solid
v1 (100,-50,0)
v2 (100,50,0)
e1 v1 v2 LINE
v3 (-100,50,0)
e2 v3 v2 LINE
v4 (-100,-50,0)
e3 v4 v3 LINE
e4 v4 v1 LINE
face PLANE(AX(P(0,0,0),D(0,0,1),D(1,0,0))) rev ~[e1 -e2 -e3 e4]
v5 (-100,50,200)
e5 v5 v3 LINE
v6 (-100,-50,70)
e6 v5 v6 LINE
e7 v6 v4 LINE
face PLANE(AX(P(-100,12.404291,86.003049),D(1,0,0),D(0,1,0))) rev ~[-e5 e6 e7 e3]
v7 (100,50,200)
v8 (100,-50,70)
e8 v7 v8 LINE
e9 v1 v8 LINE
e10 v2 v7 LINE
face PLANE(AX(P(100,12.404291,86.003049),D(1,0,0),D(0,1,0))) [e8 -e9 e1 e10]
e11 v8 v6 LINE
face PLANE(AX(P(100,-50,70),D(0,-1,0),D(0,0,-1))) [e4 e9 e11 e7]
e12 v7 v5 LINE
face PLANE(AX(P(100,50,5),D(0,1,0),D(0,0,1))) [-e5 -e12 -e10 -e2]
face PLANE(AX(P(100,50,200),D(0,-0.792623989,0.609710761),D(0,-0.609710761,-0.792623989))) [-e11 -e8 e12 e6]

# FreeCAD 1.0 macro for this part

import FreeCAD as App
import Part
import Sketcher

doc = App.newDocument("Part")
body = doc.addObject("PartDesign::Body", "Body")

sketch1 = body.newObject("Sketcher::SketchObject", "Sketch")
sketch1.AttachmentSupport = (doc.getObject("XY_Plane"), [""])
sketch1.MapMode = "FlatFace"
sketch1.addGeometry([
    Part.LineSegment(App.Vector(-100, 50, 0), App.Vector(-100, -50, 0)),
    Part.LineSegment(App.Vector(-100, -50, 0), App.Vector(100, -50, 0)),
    Part.LineSegment(App.Vector(100, -50, 0), App.Vector(100, 50, 0)),
    Part.LineSegment(App.Vector(100, 50, 0), App.Vector(-100, 50, 0)),
], False)
sketch1.addConstraint([
    Sketcher.Constraint("Coincident", 0, 2, 1, 1),
    Sketcher.Constraint("Coincident", 1, 2, 2, 1),
    Sketcher.Constraint("Coincident", 2, 2, 3, 1),
    Sketcher.Constraint("Coincident", 3, 2, 0, 1),
    Sketcher.Constraint("Vertical", 0),
    Sketcher.Constraint("Horizontal", 1),
    Sketcher.Constraint("Vertical", 2),
    Sketcher.Constraint("Horizontal", 3),
    Sketcher.Constraint("Symmetric", 0, 2, 2, 2, -1, 1),
    Sketcher.Constraint("DistanceX", 1, 1, 1, 2, 200.0),
    Sketcher.Constraint("DistanceY", 0, 2, 0, 1, 100.0),
])
pad1 = body.newObject("PartDesign::Pad", "Pad")
pad1.Profile = sketch1
pad1.Length = 5

sketch2 = body.newObject("Sketcher::SketchObject", "Sketch001")
sketch2.AttachmentSupport = (doc.getObject("YZ_Plane"), [""])
sketch2.MapMode = "FlatFace"
sketch2.AttachmentOffset = App.Placement(App.Vector(0, 0, 100), App.Rotation())
sketch2.addGeometry([
    Part.LineSegment(App.Vector(-50, 70, 0), App.Vector(-50, 5, 0)),
    Part.LineSegment(App.Vector(-50, 5, 0), App.Vector(50, 5, 0)),
    Part.LineSegment(App.Vector(50, 5, 0), App.Vector(50, 200, 0)),
    Part.LineSegment(App.Vector(50, 200, 0), App.Vector(-50, 70, 0)),
], False)
sketch2.addConstraint([
    Sketcher.Constraint("Coincident", 0, 2, 1, 1),
    Sketcher.Constraint("Coincident", 1, 2, 2, 1),
    Sketcher.Constraint("Coincident", 2, 2, 3, 1),
    Sketcher.Constraint("Coincident", 3, 2, 0, 1),
    Sketcher.Constraint("Vertical", 0),
    Sketcher.Constraint("Horizontal", 1),
    Sketcher.Constraint("Vertical", 2),
    Sketcher.Constraint("DistanceX", 1, 1, 1, 2, 100.0),
    Sketcher.Constraint("DistanceY", 0, 2, 0, 1, 65.0),
    Sketcher.Constraint("DistanceY", 2, 1, 2, 2, 195.0),
    Sketcher.Constraint("DistanceX", 0, 2, -1, 1, 50.0),
    Sketcher.Constraint("DistanceY", -1, 1, 0, 2, 5.0),
])
pad2 = body.newObject("PartDesign::Pad", "Pad001")
pad2.Profile = sketch2
pad2.Length = 200
pad2.Reversed = True

doc.recompute()
